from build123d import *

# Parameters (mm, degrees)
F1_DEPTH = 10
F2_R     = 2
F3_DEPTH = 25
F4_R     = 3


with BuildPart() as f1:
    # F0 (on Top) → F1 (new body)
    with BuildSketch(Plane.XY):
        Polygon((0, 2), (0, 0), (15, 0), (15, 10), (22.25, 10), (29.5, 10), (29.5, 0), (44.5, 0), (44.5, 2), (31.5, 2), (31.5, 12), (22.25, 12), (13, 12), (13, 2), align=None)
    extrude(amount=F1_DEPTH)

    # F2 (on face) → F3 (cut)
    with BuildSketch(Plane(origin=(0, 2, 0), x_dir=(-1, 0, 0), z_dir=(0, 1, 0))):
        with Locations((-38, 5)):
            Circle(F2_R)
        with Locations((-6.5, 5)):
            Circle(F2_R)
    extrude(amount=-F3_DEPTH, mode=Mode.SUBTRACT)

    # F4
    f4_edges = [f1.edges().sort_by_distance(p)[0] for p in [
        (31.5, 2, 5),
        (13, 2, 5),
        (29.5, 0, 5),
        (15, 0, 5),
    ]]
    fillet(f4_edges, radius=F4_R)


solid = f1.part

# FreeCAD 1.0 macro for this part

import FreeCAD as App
import Part
import Sketcher
from FreeCAD import Vector
Q = App.Units.Quantity


def edges_at(feature, points):
    """Names of the edges that pass closest to the given points."""
    edges = feature.Shape.Edges
    near = lambda p: min(range(len(edges)), key=lambda i: edges[i].distToShape(Part.Vertex(*p))[0])
    return sorted({f"Edge{near(p) + 1}" for p in points})

doc = App.newDocument("Part")
params = doc.addObject("Spreadsheet::Sheet", "Params")
for row, (alias, value) in enumerate([
    ("sketch1_width", "15 mm"),
    ("sketch1_width2", "13 mm"),
    ("sketch1_height", "2 mm"),
    ("sketch1_height2", "10 mm"),
    ("sketch1_width3", "14.5 mm"),
    ("pad1_length", "10 mm"),
    ("sketch2_diameter", "4 mm"),
    ("pocket1_length", "25 mm"),
    ("fillet_radius", "3 mm"),
], start=1):
    params.set(f"A{row}", alias)
    params.set(f"B{row}", "=" + value)
    params.setAlias(f"B{row}", alias)

body = doc.addObject("PartDesign::Body", "Body")

# Sketch on XY plane
sketch1 = doc.addObject("Sketcher::SketchObject", "Sketch")
body.addObject(sketch1)
sketch1.AttachmentSupport = (doc.XY_Plane, [""])
sketch1.MapMode = "FlatFace"
sketch1.addGeometry(Part.LineSegment(Vector(0, 2, 0), Vector(0, 0, 0)), False)
sketch1.addGeometry(Part.LineSegment(Vector(0, 0, 0), Vector(15, 0, 0)), False)
sketch1.addGeometry(Part.LineSegment(Vector(15, 0, 0), Vector(15, 10, 0)), False)
sketch1.addGeometry(Part.LineSegment(Vector(15, 10, 0), Vector(29.5, 10, 0)), False)
sketch1.addGeometry(Part.LineSegment(Vector(29.5, 10, 0), Vector(29.5, 0, 0)), False)
sketch1.addGeometry(Part.LineSegment(Vector(29.5, 0, 0), Vector(44.5, 0, 0)), False)
sketch1.addGeometry(Part.LineSegment(Vector(44.5, 0, 0), Vector(44.5, 2, 0)), False)
sketch1.addGeometry(Part.LineSegment(Vector(44.5, 2, 0), Vector(31.5, 2, 0)), False)
sketch1.addGeometry(Part.LineSegment(Vector(31.5, 2, 0), Vector(31.5, 12, 0)), False)
sketch1.addGeometry(Part.LineSegment(Vector(31.5, 12, 0), Vector(13, 12, 0)), False)
sketch1.addGeometry(Part.LineSegment(Vector(13, 12, 0), Vector(13, 2, 0)), False)
sketch1.addGeometry(Part.LineSegment(Vector(13, 2, 0), Vector(0, 2, 0)), False)
sketch1.addConstraint(Sketcher.Constraint("Coincident", 0, 2, 1, 1))
sketch1.addConstraint(Sketcher.Constraint("Coincident", 1, 2, 2, 1))
sketch1.addConstraint(Sketcher.Constraint("Coincident", 2, 2, 3, 1))
sketch1.addConstraint(Sketcher.Constraint("Coincident", 3, 2, 4, 1))
sketch1.addConstraint(Sketcher.Constraint("Coincident", 4, 2, 5, 1))
sketch1.addConstraint(Sketcher.Constraint("Coincident", 5, 2, 6, 1))
sketch1.addConstraint(Sketcher.Constraint("Coincident", 6, 2, 7, 1))
sketch1.addConstraint(Sketcher.Constraint("Coincident", 7, 2, 8, 1))
sketch1.addConstraint(Sketcher.Constraint("Coincident", 8, 2, 9, 1))
sketch1.addConstraint(Sketcher.Constraint("Coincident", 9, 2, 10, 1))
sketch1.addConstraint(Sketcher.Constraint("Coincident", 10, 2, 11, 1))
sketch1.addConstraint(Sketcher.Constraint("Coincident", 11, 2, 0, 1))
sketch1.addConstraint(Sketcher.Constraint("Vertical", 0))
sketch1.addConstraint(Sketcher.Constraint("Horizontal", 1))
sketch1.addConstraint(Sketcher.Constraint("Vertical", 2))
sketch1.addConstraint(Sketcher.Constraint("Horizontal", 3))
sketch1.addConstraint(Sketcher.Constraint("Vertical", 4))
sketch1.addConstraint(Sketcher.Constraint("Horizontal", 5))
sketch1.addConstraint(Sketcher.Constraint("Vertical", 6))
sketch1.addConstraint(Sketcher.Constraint("Horizontal", 7))
sketch1.addConstraint(Sketcher.Constraint("Vertical", 8))
sketch1.addConstraint(Sketcher.Constraint("Horizontal", 9))
sketch1.addConstraint(Sketcher.Constraint("Vertical", 10))
sketch1.addConstraint(Sketcher.Constraint("Horizontal", 11))
sketch1.addConstraint(Sketcher.Constraint("Coincident", 0, 2, -1, 1))
sketch1.addConstraint(Sketcher.Constraint("PointOnObject", 4, 2, -1))
sketch1.addConstraint(Sketcher.Constraint("Horizontal", 7, 2, 10, 2))
sketch1.addConstraint(Sketcher.Constraint("Equal", 1, 5))
sketch1.addConstraint(Sketcher.Constraint("Equal", 7, 11))
sketch1.addConstraint(Sketcher.Constraint("Equal", 4, 8))
sketch1.addConstraint(Sketcher.Constraint("DistanceX", 1, 1, 1, 2, Q("15 mm")))
sketch1.addConstraint(Sketcher.Constraint("DistanceX", 7, 2, 7, 1, Q("13 mm")))
sketch1.addConstraint(Sketcher.Constraint("DistanceY", 0, 2, 0, 1, Q("2 mm")))
sketch1.addConstraint(Sketcher.Constraint("DistanceY", 2, 1, 2, 2, Q("10 mm")))
sketch1.addConstraint(Sketcher.Constraint("DistanceX", 3, 1, 3, 2, Q("14.5 mm")))
sketch1.setExpression("Constraints[30]", "Params.sketch1_width")
sketch1.setExpression("Constraints[31]", "Params.sketch1_width2")
sketch1.setExpression("Constraints[32]", "Params.sketch1_height")
sketch1.setExpression("Constraints[33]", "Params.sketch1_height2")
sketch1.setExpression("Constraints[34]", "Params.sketch1_width3")
pad1 = doc.addObject("PartDesign::Pad", "Pad")
body.addObject(pad1)
pad1.Profile = sketch1
pad1.setExpression("Length", "Params.pad1_length")

# Sketch on XZ plane
sketch2 = doc.addObject("Sketcher::SketchObject", "Sketch001")
body.addObject(sketch2)
sketch2.AttachmentSupport = (doc.XZ_Plane, [""])
sketch2.MapMode = "FlatFace"
sketch2.AttachmentOffset = App.Placement(Vector(0, 0, -2), App.Rotation())
sketch2.addGeometry(Part.Circle(Vector(38, 5, 0), Vector(0, 0, 1), 2), False)
sketch2.addGeometry(Part.Circle(Vector(6.5, 5, 0), Vector(0, 0, 1), 2), False)
sketch2.addConstraint(Sketcher.Constraint("Equal", 0, 1))
sketch2.addConstraint(Sketcher.Constraint("Horizontal", 0, 3, 1, 3))
sketch2.addConstraint(Sketcher.Constraint("Diameter", 0, Q("4 mm")))
sketch2.addConstraint(Sketcher.Constraint("DistanceX", -1, 1, 0, 3, Q("38 mm")))
sketch2.addConstraint(Sketcher.Constraint("DistanceY", -1, 1, 0, 3, Q("5 mm")))
sketch2.addConstraint(Sketcher.Constraint("DistanceX", -1, 1, 1, 3, Q("6.5 mm")))
sketch2.setExpression("Constraints[2]", "Params.sketch2_diameter")
pocket1 = doc.addObject("PartDesign::Pocket", "Pocket")
body.addObject(pocket1)
pocket1.Profile = sketch2
pocket1.setExpression("Length", "Params.pocket1_length")
pocket1.Reversed = True
doc.recompute()

fillet = doc.addObject("PartDesign::Fillet", "Fillet")
body.addObject(fillet)
fillet.Base = (pocket1, edges_at(pocket1, [
    (31.5, 2, 5),
    (13, 2, 5),
    (29.5, 0, 5),
    (15, 0, 5),
]))
fillet.setExpression("Radius", "Params.fillet_radius")

doc.recompute()
